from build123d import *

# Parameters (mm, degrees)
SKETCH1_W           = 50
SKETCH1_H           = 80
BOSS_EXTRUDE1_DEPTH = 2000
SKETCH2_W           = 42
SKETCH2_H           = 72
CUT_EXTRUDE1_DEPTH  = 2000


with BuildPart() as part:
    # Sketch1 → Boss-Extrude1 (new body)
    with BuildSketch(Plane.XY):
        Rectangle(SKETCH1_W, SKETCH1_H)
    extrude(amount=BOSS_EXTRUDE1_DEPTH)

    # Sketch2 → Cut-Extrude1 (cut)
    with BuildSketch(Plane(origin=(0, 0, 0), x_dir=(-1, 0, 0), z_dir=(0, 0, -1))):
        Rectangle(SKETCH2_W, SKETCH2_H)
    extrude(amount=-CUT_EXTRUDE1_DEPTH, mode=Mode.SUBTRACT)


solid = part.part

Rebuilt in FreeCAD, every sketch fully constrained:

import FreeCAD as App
import Part
import Sketcher

V = App.Vector
Q = App.Units.Quantity

doc = App.newDocument("Part")
params = doc.addObject("Spreadsheet::Sheet", "Params")
for row, (alias, value) in enumerate([
    ("sketch1_width", "50 mm"),
    ("sketch1_height", "80 mm"),
    ("pad1_length", "2000 mm"),
    ("sketch2_width", "42 mm"),
    ("sketch2_height", "72 mm"),
    ("pocket1_length", "2000 mm"),
], start=1):
    params.set(f"A{row}", alias)
    params.set(f"B{row}", "=" + value)
    params.setAlias(f"B{row}", alias)

body = doc.addObject("PartDesign::Body", "Body")

sketch1 = body.newObject("Sketcher::SketchObject", "Sketch")
sketch1.AttachmentSupport = (doc.getObject("XY_Plane"), [""])
sketch1.MapMode = "FlatFace"
sketch1.addGeometry(Part.LineSegment(V(-25, 40, 0), V(-25, -40, 0)), False)
sketch1.addGeometry(Part.LineSegment(V(-25, -40, 0), V(25, -40, 0)), False)
sketch1.addGeometry(Part.LineSegment(V(25, -40, 0), V(25, 40, 0)), False)
sketch1.addGeometry(Part.LineSegment(V(25, 40, 0), V(-25, 40, 0)), False)
sketch1.addConstraint(Sketcher.Constraint("Coincident", 0, 2, 1, 1))
sketch1.addConstraint(Sketcher.Constraint("Coincident", 1, 2, 2, 1))
sketch1.addConstraint(Sketcher.Constraint("Coincident", 2, 2, 3, 1))
sketch1.addConstraint(Sketcher.Constraint("Coincident", 3, 2, 0, 1))
sketch1.addConstraint(Sketcher.Constraint("Vertical", 0))
sketch1.addConstraint(Sketcher.Constraint("Horizontal", 1))
sketch1.addConstraint(Sketcher.Constraint("Vertical", 2))
sketch1.addConstraint(Sketcher.Constraint("Horizontal", 3))
sketch1.addConstraint(Sketcher.Constraint("Symmetric", 0, 2, 2, 2, -1, 1))
sketch1.addConstraint(Sketcher.Constraint("DistanceX", 1, 1, 1, 2, Q("50 mm")))
sketch1.addConstraint(Sketcher.Constraint("DistanceY", 0, 2, 0, 1, Q("80 mm")))
sketch1.setExpression("Constraints[9]", "Params.sketch1_width")
sketch1.setExpression("Constraints[10]", "Params.sketch1_height")
pad1 = body.newObject("PartDesign::Pad", "Pad")
pad1.Profile = sketch1
pad1.setExpression("Length", "Params.pad1_length")

sketch2 = body.newObject("Sketcher::SketchObject", "Sketch001")
sketch2.AttachmentSupport = (doc.getObject("XY_Plane"), [""])
sketch2.MapMode = "FlatFace"
sketch2.addGeometry(Part.LineSegment(V(21, 36, 0), V(21, -36, 0)), False)
sketch2.addGeometry(Part.LineSegment(V(21, -36, 0), V(-21, -36, 0)), False)
sketch2.addGeometry(Part.LineSegment(V(-21, -36, 0), V(-21, 36, 0)), False)
sketch2.addGeometry(Part.LineSegment(V(-21, 36, 0), V(21, 36, 0)), False)
sketch2.addConstraint(Sketcher.Constraint("Coincident", 0, 2, 1, 1))
sketch2.addConstraint(Sketcher.Constraint("Coincident", 1, 2, 2, 1))
sketch2.addConstraint(Sketcher.Constraint("Coincident", 2, 2, 3, 1))
sketch2.addConstraint(Sketcher.Constraint("Coincident", 3, 2, 0, 1))
sketch2.addConstraint(Sketcher.Constraint("Vertical", 0))
sketch2.addConstraint(Sketcher.Constraint("Horizontal", 1))
sketch2.addConstraint(Sketcher.Constraint("Vertical", 2))
sketch2.addConstraint(Sketcher.Constraint("Horizontal", 3))
sketch2.addConstraint(Sketcher.Constraint("Symmetric", 0, 2, 2, 2, -1, 1))
sketch2.addConstraint(Sketcher.Constraint("DistanceX", 1, 2, 1, 1, Q("42 mm")))
sketch2.addConstraint(Sketcher.Constraint("DistanceY", 0, 2, 0, 1, Q("72 mm")))
sketch2.setExpression("Constraints[9]", "Params.sketch2_width")
sketch2.setExpression("Constraints[10]", "Params.sketch2_height")
pocket1 = body.newObject("PartDesign::Pocket", "Pocket")
pocket1.Profile = sketch2
pocket1.setExpression("Length", "Params.pocket1_length")
pocket1.Reversed = True

doc.recompute()
